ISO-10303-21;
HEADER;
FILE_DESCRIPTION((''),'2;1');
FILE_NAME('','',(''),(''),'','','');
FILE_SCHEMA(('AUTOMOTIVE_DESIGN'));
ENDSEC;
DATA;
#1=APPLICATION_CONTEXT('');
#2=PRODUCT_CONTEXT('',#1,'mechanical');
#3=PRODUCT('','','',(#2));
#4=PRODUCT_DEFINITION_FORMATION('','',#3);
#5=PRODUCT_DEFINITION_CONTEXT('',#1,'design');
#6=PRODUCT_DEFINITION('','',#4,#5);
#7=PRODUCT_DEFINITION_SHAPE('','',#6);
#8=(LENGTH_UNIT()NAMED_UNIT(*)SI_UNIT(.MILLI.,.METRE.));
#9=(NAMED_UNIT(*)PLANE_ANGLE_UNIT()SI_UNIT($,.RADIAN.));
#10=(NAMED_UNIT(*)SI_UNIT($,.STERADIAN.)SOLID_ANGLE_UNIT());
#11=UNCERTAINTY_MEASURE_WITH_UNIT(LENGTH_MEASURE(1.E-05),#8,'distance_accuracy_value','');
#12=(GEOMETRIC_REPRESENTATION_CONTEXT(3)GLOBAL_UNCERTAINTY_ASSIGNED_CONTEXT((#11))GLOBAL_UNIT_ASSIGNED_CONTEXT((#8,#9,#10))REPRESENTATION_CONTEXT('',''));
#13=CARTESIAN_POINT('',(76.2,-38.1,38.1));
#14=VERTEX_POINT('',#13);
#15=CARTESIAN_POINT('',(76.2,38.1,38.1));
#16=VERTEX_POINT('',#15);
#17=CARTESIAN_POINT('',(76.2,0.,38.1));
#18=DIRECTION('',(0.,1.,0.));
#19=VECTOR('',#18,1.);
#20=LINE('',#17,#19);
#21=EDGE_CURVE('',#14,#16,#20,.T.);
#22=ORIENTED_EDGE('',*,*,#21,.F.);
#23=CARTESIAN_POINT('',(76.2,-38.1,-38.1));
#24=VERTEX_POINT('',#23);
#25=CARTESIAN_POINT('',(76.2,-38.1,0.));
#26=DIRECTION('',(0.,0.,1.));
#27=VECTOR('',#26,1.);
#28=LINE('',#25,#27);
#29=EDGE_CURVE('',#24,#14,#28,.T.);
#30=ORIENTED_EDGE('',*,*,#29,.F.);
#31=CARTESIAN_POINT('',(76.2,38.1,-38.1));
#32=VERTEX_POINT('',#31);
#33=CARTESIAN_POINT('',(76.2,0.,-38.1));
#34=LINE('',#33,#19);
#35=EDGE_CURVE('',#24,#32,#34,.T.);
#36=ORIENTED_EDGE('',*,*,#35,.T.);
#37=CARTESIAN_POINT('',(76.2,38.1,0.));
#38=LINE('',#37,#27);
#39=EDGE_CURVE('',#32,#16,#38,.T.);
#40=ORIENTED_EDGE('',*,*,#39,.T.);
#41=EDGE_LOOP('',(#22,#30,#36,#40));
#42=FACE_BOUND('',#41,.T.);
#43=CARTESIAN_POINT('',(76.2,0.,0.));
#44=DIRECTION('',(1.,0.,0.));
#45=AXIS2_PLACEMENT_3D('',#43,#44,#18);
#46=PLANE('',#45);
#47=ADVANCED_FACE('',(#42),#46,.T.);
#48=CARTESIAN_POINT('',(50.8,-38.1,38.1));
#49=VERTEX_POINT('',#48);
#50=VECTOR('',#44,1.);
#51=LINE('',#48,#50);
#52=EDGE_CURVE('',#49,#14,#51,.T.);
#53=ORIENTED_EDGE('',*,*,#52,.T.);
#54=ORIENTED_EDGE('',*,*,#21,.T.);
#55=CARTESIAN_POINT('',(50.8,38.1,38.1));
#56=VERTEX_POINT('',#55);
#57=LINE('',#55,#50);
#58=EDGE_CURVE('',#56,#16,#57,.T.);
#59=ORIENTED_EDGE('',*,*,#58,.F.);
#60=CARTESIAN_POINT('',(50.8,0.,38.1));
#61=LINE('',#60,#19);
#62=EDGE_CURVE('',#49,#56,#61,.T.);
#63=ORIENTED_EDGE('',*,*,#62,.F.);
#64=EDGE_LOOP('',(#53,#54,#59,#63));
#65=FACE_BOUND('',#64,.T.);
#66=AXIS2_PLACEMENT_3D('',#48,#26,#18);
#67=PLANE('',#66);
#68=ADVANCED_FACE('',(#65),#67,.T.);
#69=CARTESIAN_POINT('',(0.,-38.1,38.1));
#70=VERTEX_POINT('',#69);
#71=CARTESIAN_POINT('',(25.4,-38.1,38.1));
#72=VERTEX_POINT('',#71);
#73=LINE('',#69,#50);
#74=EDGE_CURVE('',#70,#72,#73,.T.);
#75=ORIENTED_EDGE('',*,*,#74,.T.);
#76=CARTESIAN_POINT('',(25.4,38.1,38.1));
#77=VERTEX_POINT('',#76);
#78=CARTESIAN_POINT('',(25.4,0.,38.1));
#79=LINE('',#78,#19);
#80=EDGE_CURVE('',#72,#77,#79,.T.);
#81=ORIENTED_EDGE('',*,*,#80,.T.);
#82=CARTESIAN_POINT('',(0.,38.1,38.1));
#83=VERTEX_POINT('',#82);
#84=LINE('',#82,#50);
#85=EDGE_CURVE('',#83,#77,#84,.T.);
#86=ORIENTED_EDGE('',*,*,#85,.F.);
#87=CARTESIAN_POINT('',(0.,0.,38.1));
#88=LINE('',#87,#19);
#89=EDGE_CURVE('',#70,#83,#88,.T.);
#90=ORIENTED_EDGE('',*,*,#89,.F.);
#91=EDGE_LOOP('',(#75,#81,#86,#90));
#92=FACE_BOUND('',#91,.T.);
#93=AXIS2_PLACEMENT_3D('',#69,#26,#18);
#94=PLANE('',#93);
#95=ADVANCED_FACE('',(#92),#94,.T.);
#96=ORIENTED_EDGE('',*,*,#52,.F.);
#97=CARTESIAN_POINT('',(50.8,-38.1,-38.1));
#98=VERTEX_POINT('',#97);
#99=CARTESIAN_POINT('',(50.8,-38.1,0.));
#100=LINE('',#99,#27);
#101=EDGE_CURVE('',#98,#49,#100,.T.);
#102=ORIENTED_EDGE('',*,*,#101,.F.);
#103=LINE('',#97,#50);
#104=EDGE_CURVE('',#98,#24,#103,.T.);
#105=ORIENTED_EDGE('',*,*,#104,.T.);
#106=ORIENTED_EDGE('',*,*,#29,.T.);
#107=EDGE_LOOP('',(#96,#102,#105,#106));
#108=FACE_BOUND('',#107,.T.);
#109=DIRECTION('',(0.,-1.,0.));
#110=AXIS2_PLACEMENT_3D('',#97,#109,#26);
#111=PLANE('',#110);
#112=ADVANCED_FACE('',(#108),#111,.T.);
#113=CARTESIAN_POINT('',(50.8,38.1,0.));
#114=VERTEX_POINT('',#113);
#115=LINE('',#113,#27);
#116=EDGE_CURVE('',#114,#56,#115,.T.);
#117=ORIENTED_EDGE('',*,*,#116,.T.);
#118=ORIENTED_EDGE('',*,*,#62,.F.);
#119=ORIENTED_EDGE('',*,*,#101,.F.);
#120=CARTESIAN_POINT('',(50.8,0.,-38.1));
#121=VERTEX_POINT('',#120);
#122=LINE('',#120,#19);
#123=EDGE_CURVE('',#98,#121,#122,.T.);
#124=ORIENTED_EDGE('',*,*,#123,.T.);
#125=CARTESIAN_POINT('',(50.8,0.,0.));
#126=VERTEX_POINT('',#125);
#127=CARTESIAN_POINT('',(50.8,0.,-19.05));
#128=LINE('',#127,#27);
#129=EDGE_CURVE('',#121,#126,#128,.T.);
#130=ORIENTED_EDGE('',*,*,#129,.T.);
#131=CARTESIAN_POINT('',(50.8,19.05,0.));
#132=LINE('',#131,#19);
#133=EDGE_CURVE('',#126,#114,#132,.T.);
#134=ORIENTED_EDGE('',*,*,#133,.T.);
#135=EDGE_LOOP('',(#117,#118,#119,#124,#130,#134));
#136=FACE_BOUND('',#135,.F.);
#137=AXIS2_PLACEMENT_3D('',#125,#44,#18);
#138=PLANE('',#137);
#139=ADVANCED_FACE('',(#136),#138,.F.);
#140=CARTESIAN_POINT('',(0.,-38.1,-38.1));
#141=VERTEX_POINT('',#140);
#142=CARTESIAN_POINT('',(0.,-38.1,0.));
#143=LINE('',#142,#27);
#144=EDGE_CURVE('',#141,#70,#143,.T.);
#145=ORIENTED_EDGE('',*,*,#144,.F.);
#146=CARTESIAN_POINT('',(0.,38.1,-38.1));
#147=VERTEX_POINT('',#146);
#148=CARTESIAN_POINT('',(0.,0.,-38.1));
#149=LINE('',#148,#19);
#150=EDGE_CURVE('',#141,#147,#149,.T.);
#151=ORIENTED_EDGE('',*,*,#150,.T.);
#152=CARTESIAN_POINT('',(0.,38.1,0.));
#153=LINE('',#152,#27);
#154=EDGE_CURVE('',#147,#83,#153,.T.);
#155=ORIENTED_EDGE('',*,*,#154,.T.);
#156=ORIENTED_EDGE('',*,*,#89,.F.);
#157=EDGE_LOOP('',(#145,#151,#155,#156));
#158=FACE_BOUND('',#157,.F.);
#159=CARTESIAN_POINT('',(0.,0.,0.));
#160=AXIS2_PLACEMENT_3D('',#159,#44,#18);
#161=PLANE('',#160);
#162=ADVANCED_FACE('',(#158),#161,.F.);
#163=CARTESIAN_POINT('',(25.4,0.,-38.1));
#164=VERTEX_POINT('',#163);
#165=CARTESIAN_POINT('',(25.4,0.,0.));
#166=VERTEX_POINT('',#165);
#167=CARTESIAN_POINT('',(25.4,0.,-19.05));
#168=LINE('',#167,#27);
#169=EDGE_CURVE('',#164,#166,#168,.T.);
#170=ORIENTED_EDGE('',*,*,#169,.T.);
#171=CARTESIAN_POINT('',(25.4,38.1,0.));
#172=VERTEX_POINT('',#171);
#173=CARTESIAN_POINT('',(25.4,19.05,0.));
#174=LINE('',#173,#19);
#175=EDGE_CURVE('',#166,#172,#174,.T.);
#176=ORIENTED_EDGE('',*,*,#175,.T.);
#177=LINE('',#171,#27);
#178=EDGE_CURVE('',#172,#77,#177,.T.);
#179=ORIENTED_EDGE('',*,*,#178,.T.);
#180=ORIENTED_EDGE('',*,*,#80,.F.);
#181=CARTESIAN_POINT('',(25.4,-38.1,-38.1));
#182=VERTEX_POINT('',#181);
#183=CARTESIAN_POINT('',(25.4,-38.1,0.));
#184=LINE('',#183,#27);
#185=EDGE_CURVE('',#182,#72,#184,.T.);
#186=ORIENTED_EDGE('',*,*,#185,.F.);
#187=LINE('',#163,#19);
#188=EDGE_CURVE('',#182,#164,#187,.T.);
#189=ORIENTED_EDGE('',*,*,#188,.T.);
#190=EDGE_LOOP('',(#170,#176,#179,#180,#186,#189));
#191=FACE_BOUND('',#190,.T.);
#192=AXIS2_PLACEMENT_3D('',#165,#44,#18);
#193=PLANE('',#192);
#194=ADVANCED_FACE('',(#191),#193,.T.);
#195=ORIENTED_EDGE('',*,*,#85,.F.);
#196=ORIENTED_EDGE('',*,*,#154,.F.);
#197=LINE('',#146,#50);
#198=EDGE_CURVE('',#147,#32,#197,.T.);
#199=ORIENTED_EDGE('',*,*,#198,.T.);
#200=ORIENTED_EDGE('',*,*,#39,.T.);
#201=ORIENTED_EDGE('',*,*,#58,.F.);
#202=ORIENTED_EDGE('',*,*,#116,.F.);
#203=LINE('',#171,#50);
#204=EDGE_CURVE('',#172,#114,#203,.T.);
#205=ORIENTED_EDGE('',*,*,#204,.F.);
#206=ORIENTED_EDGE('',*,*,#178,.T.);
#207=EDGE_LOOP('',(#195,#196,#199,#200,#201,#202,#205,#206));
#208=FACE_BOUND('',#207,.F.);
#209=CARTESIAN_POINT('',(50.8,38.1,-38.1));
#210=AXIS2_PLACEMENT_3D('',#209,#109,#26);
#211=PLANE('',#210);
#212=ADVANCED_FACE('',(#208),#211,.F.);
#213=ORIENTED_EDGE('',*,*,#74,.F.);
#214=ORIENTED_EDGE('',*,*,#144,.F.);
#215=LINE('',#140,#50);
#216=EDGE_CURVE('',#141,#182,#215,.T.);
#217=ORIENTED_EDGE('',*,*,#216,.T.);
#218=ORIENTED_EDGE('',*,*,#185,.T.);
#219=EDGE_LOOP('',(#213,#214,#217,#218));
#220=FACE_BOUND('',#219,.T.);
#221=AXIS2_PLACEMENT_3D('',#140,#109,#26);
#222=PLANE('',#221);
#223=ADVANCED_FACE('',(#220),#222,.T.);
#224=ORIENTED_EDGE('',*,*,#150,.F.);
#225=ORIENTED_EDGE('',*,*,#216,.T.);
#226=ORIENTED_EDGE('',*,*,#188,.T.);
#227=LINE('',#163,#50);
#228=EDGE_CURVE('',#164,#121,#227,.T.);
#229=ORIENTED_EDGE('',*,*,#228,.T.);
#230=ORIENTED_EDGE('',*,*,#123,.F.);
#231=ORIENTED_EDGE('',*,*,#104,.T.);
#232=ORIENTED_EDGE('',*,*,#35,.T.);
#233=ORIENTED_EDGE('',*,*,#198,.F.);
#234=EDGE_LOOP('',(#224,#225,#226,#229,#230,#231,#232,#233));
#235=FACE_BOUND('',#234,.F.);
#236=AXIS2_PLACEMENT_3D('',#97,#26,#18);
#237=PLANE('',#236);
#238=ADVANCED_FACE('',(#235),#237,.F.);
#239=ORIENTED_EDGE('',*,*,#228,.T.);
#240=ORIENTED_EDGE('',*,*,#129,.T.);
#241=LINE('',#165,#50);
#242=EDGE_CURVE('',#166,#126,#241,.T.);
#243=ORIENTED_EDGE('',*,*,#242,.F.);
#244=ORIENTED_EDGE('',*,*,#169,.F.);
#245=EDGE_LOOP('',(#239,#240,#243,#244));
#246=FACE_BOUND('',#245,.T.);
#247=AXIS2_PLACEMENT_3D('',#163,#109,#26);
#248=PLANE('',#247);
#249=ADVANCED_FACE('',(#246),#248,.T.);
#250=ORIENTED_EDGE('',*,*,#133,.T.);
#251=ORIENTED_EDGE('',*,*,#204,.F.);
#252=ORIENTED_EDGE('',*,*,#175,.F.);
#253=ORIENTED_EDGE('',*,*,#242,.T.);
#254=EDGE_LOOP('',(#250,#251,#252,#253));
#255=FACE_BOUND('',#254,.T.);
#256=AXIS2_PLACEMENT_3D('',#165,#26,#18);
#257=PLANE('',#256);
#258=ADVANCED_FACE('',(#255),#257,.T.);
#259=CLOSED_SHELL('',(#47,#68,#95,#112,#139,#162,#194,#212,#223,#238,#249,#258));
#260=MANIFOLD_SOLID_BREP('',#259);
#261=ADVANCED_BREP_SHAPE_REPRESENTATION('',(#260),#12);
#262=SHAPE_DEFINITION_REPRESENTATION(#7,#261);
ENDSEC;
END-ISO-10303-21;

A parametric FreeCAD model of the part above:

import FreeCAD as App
import Part
import Sketcher
Q = App.Units.Quantity


def add_polygon(sketch, points):
    """Adds a closed chain of lines whose ends are joined by coincident constraints."""
    first, n = sketch.GeometryCount, len(points)
    for a, b in zip(points, points[1:] + points[:1]):
        sketch.addGeometry(Part.LineSegment(App.Vector(*a, 0), App.Vector(*b, 0)), False)
    for i in range(n):
        sketch.addConstraint(Sketcher.Constraint("Coincident", first + i, 2, first + (i + 1) % n, 1))

doc = App.newDocument("Part")
body = doc.addObject("PartDesign::Body", "Body")

sketch1 = body.newObject("Sketcher::SketchObject", "Sketch")
sketch1.AttachmentSupport = (doc.getObject("YZ_Plane"), [""])
sketch1.MapMode = "FlatFace"
add_polygon(sketch1, [(-38, 38), (-38, -38), (38, -38), (38, 38)])
sketch1.addConstraint([
    Sketcher.Constraint("Vertical", 0),
    Sketcher.Constraint("Horizontal", 1),
    Sketcher.Constraint("Vertical", 2),
    Sketcher.Constraint("Horizontal", 3),
    Sketcher.Constraint("Symmetric", 0, 2, 2, 2, -1, 1),
    Sketcher.Constraint("Equal", 3, 0),
    Sketcher.Constraint("DistanceX", 1, 1, 1, 2, Q("3 in")),
])
pad1 = body.newObject("PartDesign::Pad", "Pad")
pad1.Profile = sketch1
pad1.Length = Q("1 in")

sketch2 = body.newObject("Sketcher::SketchObject", "Sketch001")
sketch2.AttachmentSupport = (doc.getObject("YZ_Plane"), [""])
sketch2.MapMode = "FlatFace"
sketch2.AttachmentOffset = App.Placement(App.Vector(0, 0, 1 * 25.4), App.Rotation())
add_polygon(sketch2, [(0, 0), (0, -38), (38, -38), (38, 0)])
sketch2.addConstraint([
    Sketcher.Constraint("Vertical", 0),
    Sketcher.Constraint("Horizontal", 1),
    Sketcher.Constraint("Vertical", 2),
    Sketcher.Constraint("Horizontal", 3),
    Sketcher.Constraint("Coincident", 3, 2, -1, 1),
    Sketcher.Constraint("Equal", 3, 0),
    Sketcher.Constraint("DistanceX", 1, 1, 1, 2, Q("1.5 in")),
])
pad2 = body.newObject("PartDesign::Pad", "Pad001")
pad2.Profile = sketch2
pad2.Length = Q("1 in")

sketch3 = body.newObject("Sketcher::SketchObject", "Sketch002")
sketch3.AttachmentSupport = (doc.getObject("YZ_Plane"), [""])
sketch3.MapMode = "FlatFace"
sketch3.AttachmentOffset = App.Placement(App.Vector(0, 0, 2 * 25.4), App.Rotation())
add_polygon(sketch3, [(-38, 38), (-38, -38), (38, -38), (38, 38)])
sketch3.addConstraint([
    Sketcher.Constraint("Vertical", 0),
    Sketcher.Constraint("Horizontal", 1),
    Sketcher.Constraint("Vertical", 2),
    Sketcher.Constraint("Horizontal", 3),
    Sketcher.Constraint("Symmetric", 0, 2, 2, 2, -1, 1),
    Sketcher.Constraint("Equal", 3, 0),
    Sketcher.Constraint("DistanceX", 1, 1, 1, 2, Q("3 in")),
])
pad3 = body.newObject("PartDesign::Pad", "Pad002")
pad3.Profile = sketch3
pad3.Length = Q("1 in")

doc.recompute()
